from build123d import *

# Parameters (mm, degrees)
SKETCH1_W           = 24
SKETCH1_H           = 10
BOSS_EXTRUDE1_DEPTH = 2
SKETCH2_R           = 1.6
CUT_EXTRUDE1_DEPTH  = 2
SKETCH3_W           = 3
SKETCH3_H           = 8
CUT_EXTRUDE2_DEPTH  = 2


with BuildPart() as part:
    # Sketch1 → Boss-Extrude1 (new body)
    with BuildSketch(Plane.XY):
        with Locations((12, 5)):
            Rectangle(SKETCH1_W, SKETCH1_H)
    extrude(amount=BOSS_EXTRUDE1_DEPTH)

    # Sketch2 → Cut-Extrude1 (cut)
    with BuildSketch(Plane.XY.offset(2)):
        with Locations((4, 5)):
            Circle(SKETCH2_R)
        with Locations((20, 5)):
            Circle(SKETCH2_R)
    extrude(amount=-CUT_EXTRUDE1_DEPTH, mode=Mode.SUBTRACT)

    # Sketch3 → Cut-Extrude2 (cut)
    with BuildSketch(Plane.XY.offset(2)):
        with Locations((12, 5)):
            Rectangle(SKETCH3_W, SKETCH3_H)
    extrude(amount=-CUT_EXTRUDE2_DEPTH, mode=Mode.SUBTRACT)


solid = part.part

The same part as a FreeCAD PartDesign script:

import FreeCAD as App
import Part
import Sketcher
from FreeCAD import Vector

doc = App.newDocument("Part")
body = doc.addObject("PartDesign::Body", "Body")

# Sketch on XY plane
sketch1 = body.newObject("Sketcher::SketchObject", "Sketch")
sketch1.AttachmentSupport = (doc.getObject("XY_Plane"), [""])
sketch1.MapMode = "FlatFace"
sketch1.addGeometry([
    Part.LineSegment(Vector(0, 10, 0), Vector(0, 0, 0)),
    Part.LineSegment(Vector(0, 0, 0), Vector(24, 0, 0)),
    Part.LineSegment(Vector(24, 0, 0), Vector(24, 10, 0)),
    Part.LineSegment(Vector(24, 10, 0), Vector(0, 10, 0)),
], False)
sketch1.addConstraint([
    Sketcher.Constraint("Coincident", 0, 2, 1, 1),
    Sketcher.Constraint("Coincident", 1, 2, 2, 1),
    Sketcher.Constraint("Coincident", 2, 2, 3, 1),
    Sketcher.Constraint("Coincident", 3, 2, 0, 1),
    Sketcher.Constraint("Vertical", 0),
    Sketcher.Constraint("Horizontal", 1),
    Sketcher.Constraint("Vertical", 2),
    Sketcher.Constraint("Horizontal", 3),
    Sketcher.Constraint("Coincident", 0, 2, -1, 1),
    Sketcher.Constraint("DistanceX", 1, 1, 1, 2, 24.0),
    Sketcher.Constraint("DistanceY", 0, 2, 0, 1, 10.0),
])
pad1 = body.newObject("PartDesign::Pad", "Pad")
pad1.Profile = sketch1
pad1.Length = 2

# Sketch on XY plane
sketch2 = body.newObject("Sketcher::SketchObject", "Sketch001")
sketch2.AttachmentSupport = (doc.getObject("XY_Plane"), [""])
sketch2.MapMode = "FlatFace"
sketch2.AttachmentOffset = App.Placement(Vector(0, 0, 2), App.Rotation())
sketch2.addGeometry([
    Part.Circle(Vector(4, 5, 0), Vector(0, 0, 1), 1.6),
    Part.Circle(Vector(20, 5, 0), Vector(0, 0, 1), 1.6),
], False)
sketch2.addConstraint([
    Sketcher.Constraint("Equal", 0, 1),
    Sketcher.Constraint("Horizontal", 0, 3, 1, 3),
    Sketcher.Constraint("Diameter", 0, 3.2),
    Sketcher.Constraint("DistanceX", -1, 1, 0, 3, 4.0),
    Sketcher.Constraint("DistanceY", -1, 1, 0, 3, 5.0),
    Sketcher.Constraint("DistanceX", -1, 1, 1, 3, 20.0),
])
pocket1 = body.newObject("PartDesign::Pocket", "Pocket")
pocket1.Profile = sketch2
pocket1.Length = 2

# Sketch on XY plane
sketch3 = body.newObject("Sketcher::SketchObject", "Sketch002")
sketch3.AttachmentSupport = (doc.getObject("XY_Plane"), [""])
sketch3.MapMode = "FlatFace"
sketch3.AttachmentOffset = App.Placement(Vector(0, 0, 2), App.Rotation())
sketch3.addGeometry([
    Part.LineSegment(Vector(10.5, 9, 0), Vector(10.5, 1, 0)),
    Part.LineSegment(Vector(10.5, 1, 0), Vector(13.5, 1, 0)),
    Part.LineSegment(Vector(13.5, 1, 0), Vector(13.5, 9, 0)),
    Part.LineSegment(Vector(13.5, 9, 0), Vector(10.5, 9, 0)),
], False)
sketch3.addConstraint([
    Sketcher.Constraint("Coincident", 0, 2, 1, 1),
    Sketcher.Constraint("Coincident", 1, 2, 2, 1),
    Sketcher.Constraint("Coincident", 2, 2, 3, 1),
    Sketcher.Constraint("Coincident", 3, 2, 0, 1),
    Sketcher.Constraint("Vertical", 0),
    Sketcher.Constraint("Horizontal", 1),
    Sketcher.Constraint("Vertical", 2),
    Sketcher.Constraint("Horizontal", 3),
    Sketcher.Constraint("DistanceX", 1, 1, 1, 2, 3.0),
    Sketcher.Constraint("DistanceY", 0, 2, 0, 1, 8.0),
    Sketcher.Constraint("DistanceY", -1, 1, 0, 2, 1.0),
    Sketcher.Constraint("DistanceX", -1, 1, 0, 2, 10.5),
])
pocket2 = body.newObject("PartDesign::Pocket", "Pocket001")
pocket2.Profile = sketch3
pocket2.Length = 2

doc.recompute()
